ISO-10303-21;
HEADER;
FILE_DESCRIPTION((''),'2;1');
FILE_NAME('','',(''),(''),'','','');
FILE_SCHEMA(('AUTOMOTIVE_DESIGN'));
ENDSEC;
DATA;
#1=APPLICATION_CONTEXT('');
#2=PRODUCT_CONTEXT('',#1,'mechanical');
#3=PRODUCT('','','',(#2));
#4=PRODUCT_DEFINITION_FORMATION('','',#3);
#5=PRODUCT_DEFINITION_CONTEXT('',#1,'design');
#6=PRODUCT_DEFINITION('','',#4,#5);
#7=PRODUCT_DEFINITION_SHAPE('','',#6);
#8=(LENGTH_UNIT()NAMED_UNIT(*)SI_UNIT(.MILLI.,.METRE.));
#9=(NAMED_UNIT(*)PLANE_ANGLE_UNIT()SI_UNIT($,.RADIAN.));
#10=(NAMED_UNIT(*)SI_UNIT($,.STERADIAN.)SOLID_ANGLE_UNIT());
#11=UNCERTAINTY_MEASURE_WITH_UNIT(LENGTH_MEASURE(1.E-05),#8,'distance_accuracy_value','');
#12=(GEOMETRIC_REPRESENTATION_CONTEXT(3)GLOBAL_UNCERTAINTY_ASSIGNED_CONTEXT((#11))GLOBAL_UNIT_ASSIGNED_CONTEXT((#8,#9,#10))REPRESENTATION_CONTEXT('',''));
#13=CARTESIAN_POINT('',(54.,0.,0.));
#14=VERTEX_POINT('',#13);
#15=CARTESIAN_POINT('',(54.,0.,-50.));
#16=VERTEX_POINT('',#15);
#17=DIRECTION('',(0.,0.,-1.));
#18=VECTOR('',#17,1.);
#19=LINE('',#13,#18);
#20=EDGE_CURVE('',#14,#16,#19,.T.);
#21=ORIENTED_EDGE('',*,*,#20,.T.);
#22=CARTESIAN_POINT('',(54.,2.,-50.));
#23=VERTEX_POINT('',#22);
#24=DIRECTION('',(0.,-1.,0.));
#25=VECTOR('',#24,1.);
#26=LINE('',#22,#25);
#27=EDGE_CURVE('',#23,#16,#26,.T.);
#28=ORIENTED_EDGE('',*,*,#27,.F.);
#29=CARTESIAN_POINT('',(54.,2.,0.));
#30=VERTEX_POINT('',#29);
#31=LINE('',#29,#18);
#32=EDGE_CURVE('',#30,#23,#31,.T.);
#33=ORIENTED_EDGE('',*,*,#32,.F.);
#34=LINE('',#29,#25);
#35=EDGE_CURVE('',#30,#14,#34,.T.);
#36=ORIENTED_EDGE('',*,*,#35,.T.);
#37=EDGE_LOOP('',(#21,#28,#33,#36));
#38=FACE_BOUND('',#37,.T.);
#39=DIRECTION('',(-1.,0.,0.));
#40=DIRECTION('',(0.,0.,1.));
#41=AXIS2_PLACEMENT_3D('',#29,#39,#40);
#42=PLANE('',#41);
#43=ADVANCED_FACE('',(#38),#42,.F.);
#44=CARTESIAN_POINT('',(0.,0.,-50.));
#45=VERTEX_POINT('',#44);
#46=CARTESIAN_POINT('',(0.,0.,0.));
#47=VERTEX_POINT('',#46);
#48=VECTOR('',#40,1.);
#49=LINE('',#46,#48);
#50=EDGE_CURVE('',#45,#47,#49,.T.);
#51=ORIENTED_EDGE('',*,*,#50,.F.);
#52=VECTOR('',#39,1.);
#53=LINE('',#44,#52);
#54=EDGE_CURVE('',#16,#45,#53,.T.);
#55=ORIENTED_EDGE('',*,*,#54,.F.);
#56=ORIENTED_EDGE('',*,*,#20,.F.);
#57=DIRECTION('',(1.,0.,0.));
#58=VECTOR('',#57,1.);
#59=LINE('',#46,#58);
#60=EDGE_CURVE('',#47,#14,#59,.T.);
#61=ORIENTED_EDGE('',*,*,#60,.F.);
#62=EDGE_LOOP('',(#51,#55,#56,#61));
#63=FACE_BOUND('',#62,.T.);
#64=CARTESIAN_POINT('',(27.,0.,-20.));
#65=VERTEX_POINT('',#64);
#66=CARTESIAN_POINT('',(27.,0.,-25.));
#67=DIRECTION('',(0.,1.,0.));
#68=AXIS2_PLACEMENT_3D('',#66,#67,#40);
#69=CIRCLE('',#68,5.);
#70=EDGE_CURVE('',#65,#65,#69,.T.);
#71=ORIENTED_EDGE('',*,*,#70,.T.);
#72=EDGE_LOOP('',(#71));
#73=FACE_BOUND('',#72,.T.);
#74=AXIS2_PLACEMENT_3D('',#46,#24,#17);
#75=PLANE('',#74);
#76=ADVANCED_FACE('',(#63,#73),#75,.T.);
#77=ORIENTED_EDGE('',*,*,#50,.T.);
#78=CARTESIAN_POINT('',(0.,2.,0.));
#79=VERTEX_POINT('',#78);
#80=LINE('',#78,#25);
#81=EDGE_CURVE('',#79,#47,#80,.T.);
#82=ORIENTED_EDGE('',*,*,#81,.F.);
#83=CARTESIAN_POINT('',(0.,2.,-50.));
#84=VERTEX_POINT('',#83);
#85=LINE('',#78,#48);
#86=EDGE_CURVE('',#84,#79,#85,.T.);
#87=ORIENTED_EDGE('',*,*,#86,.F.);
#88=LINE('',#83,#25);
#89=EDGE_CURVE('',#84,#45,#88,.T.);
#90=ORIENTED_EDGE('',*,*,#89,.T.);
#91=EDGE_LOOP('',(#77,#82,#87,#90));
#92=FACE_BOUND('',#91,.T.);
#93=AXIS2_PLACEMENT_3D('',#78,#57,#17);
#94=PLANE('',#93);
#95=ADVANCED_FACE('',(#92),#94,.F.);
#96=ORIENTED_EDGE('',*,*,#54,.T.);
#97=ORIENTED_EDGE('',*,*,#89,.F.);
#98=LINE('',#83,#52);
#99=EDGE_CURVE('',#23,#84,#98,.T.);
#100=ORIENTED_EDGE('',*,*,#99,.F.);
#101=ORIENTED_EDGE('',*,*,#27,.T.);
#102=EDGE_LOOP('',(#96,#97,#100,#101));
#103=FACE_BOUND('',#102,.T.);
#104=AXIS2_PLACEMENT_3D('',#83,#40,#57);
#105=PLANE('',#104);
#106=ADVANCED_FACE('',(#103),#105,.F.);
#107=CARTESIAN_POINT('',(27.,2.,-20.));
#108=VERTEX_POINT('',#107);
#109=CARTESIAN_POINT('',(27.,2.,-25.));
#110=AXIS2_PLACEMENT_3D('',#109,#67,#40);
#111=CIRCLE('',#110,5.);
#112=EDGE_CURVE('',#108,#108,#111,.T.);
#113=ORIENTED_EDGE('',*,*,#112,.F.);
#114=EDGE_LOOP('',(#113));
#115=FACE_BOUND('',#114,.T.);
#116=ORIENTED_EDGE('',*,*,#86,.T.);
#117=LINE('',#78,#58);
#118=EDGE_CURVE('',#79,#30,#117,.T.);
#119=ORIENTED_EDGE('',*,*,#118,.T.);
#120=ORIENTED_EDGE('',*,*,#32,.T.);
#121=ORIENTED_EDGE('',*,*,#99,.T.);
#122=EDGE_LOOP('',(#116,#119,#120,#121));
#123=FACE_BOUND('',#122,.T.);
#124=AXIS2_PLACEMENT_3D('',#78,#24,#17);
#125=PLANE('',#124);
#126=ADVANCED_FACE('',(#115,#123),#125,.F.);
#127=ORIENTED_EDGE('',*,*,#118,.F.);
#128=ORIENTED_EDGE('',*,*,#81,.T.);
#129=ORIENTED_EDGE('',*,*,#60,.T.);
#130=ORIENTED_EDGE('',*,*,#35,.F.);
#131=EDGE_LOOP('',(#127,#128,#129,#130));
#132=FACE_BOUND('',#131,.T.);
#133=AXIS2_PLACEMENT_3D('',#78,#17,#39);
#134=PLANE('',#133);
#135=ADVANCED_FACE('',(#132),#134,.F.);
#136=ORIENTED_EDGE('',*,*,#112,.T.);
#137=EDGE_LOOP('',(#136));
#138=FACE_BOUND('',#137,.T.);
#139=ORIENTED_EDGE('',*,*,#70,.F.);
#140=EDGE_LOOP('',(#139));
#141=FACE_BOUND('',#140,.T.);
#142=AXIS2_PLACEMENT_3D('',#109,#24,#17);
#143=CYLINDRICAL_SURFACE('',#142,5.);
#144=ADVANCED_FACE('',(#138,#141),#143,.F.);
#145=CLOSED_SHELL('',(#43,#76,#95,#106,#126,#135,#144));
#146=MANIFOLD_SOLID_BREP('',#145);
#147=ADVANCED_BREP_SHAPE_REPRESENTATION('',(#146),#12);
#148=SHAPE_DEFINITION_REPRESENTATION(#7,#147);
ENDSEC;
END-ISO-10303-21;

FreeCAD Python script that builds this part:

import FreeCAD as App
import Part
import Sketcher
Q = App.Units.Quantity

doc = App.newDocument("Part")
body = doc.addObject("PartDesign::Body", "Body")

sketch1 = body.newObject("Sketcher::SketchObject", "Sketch")
sketch1.AttachmentSupport = (doc.getObject("XZ_Plane"), [""])
sketch1.MapMode = "FlatFace"
sketch1.addGeometry(Part.LineSegment(App.Vector(0, -50, 0), App.Vector(0, 0, 0)), False)
sketch1.addGeometry(Part.LineSegment(App.Vector(0, 0, 0), App.Vector(54, 0, 0)), False)
sketch1.addGeometry(Part.LineSegment(App.Vector(54, 0, 0), App.Vector(54, -50, 0)), False)
sketch1.addGeometry(Part.LineSegment(App.Vector(54, -50, 0), App.Vector(0, -50, 0)), False)
sketch1.addGeometry(Part.Circle(App.Vector(27, -25, 0), App.Vector(0, 0, 1), 5), False)
sketch1.addConstraint(Sketcher.Constraint("Coincident", 0, 2, 1, 1))
sketch1.addConstraint(Sketcher.Constraint("Coincident", 1, 2, 2, 1))
sketch1.addConstraint(Sketcher.Constraint("Coincident", 2, 2, 3, 1))
sketch1.addConstraint(Sketcher.Constraint("Coincident", 3, 2, 0, 1))
sketch1.addConstraint(Sketcher.Constraint("Vertical", 0))
sketch1.addConstraint(Sketcher.Constraint("Horizontal", 1))
sketch1.addConstraint(Sketcher.Constraint("Vertical", 2))
sketch1.addConstraint(Sketcher.Constraint("Horizontal", 3))
sketch1.addConstraint(Sketcher.Constraint("Coincident", 0, 2, -1, 1))
sketch1.addConstraint(Sketcher.Constraint("Diameter", 4, Q("10 mm")))
sketch1.addConstraint(Sketcher.Constraint("DistanceX", 1, 1, 1, 2, Q("54 mm")))
sketch1.addConstraint(Sketcher.Constraint("DistanceY", 0, 1, 0, 2, Q("50 mm")))
sketch1.addConstraint(Sketcher.Constraint("DistanceX", -1, 1, 4, 3, Q("27 mm")))
sketch1.addConstraint(Sketcher.Constraint("DistanceY", 4, 3, -1, 1, Q("25 mm")))
pad1 = body.newObject("PartDesign::Pad", "Pad")
pad1.Profile = sketch1
pad1.Length = 2
pad1.Reversed = True

doc.recompute()
